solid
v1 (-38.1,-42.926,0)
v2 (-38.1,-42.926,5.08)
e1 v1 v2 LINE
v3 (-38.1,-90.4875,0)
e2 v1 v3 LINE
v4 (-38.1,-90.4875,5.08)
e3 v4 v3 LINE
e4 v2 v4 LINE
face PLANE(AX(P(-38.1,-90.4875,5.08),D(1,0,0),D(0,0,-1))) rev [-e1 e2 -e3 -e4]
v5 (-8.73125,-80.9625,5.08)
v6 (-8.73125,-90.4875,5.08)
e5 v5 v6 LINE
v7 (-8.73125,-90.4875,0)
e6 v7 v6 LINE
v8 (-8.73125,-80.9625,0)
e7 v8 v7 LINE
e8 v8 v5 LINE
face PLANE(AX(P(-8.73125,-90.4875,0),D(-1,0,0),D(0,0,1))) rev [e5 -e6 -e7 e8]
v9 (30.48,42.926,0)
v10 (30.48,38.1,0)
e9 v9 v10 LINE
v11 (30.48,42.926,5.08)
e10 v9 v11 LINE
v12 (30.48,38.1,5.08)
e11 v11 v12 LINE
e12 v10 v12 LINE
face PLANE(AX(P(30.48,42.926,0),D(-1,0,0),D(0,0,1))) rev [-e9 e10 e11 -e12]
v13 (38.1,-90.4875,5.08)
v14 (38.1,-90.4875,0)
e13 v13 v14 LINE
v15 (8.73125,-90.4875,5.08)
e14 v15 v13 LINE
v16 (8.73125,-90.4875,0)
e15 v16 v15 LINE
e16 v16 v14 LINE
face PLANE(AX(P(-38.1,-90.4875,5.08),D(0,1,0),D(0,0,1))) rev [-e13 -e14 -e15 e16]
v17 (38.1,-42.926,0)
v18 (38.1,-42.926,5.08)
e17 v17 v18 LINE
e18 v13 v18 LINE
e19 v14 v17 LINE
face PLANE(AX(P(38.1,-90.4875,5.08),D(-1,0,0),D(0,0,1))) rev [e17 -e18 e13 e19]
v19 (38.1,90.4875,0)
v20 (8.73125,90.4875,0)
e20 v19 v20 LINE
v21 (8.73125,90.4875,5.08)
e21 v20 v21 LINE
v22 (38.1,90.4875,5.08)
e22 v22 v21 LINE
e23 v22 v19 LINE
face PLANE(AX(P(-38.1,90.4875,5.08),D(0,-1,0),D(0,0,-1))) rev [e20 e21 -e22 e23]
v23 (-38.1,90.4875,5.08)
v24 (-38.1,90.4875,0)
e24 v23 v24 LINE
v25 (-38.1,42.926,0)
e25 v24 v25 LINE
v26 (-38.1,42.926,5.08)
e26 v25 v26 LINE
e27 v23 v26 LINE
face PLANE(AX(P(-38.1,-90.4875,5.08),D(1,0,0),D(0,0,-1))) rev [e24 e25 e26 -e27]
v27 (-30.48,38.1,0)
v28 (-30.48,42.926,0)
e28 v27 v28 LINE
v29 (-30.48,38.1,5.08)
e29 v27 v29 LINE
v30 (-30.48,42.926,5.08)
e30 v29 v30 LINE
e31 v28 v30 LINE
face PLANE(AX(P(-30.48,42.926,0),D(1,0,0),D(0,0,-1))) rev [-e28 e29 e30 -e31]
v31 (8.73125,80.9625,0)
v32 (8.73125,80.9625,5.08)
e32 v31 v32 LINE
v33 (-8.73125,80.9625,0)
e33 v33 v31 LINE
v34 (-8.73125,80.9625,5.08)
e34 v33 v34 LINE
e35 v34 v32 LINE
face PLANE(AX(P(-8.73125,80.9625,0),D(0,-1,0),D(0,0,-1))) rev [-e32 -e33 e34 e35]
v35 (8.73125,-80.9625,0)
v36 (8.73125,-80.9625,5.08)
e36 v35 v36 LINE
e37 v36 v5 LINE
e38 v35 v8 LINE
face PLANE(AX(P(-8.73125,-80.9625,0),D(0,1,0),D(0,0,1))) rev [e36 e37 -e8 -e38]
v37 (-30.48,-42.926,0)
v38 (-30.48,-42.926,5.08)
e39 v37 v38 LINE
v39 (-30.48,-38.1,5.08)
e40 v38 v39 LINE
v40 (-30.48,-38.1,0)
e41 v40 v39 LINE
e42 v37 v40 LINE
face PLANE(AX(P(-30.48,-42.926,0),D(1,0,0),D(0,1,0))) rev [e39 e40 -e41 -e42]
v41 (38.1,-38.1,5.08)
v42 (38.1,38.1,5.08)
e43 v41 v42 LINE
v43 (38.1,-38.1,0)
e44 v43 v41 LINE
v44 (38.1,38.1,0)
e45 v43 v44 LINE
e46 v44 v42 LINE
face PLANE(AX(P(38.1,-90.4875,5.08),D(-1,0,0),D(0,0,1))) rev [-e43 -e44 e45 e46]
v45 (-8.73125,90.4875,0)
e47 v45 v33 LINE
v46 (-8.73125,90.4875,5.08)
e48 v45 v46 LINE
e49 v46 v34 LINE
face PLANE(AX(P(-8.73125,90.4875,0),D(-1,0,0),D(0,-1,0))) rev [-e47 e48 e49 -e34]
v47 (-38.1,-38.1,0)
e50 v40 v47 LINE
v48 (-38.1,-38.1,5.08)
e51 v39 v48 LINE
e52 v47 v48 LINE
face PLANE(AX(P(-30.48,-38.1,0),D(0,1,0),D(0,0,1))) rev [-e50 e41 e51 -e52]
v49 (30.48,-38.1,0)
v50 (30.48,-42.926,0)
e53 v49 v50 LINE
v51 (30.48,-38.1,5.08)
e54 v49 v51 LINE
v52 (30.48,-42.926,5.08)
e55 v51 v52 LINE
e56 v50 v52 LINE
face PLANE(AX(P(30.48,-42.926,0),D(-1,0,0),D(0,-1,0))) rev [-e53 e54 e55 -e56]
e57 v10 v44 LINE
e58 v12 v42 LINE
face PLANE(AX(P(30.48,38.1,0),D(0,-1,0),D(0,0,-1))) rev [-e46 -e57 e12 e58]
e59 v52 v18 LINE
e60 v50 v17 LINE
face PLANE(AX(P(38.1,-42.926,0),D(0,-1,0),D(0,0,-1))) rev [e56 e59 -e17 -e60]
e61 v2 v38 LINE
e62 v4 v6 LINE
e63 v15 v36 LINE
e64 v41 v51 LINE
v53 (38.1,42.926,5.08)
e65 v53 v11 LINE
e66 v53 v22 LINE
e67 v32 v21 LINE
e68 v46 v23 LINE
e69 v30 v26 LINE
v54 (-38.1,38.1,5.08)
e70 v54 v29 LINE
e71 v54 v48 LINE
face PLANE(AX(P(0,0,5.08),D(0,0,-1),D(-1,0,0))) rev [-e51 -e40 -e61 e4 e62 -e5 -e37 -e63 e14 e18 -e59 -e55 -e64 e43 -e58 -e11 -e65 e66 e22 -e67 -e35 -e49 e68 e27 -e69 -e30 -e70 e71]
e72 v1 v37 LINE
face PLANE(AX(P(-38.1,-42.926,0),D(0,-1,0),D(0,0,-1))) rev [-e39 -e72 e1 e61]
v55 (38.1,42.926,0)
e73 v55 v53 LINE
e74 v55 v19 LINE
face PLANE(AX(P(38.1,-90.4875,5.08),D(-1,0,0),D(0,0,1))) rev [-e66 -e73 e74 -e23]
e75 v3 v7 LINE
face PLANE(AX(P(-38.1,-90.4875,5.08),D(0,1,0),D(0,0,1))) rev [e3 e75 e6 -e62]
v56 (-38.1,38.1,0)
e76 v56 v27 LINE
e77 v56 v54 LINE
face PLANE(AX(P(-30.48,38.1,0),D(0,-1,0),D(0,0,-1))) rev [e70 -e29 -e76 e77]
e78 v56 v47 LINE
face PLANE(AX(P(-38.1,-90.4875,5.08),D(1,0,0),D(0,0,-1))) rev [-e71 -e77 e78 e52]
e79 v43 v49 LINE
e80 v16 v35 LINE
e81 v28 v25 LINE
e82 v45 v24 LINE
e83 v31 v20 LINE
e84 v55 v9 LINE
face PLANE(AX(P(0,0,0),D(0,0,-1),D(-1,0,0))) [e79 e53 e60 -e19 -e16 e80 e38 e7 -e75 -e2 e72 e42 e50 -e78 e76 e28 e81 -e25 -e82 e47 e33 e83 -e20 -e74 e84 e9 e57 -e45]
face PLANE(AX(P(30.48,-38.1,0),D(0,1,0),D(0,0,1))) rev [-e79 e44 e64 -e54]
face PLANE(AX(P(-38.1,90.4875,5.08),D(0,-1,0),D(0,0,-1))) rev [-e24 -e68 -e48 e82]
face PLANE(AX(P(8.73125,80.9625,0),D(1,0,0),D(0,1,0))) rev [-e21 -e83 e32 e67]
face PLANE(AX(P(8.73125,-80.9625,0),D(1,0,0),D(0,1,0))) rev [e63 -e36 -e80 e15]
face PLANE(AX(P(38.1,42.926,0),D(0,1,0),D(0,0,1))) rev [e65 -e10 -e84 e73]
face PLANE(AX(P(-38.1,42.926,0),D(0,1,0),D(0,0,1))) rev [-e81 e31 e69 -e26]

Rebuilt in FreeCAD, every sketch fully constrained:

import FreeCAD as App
import Part
import Sketcher

V = App.Vector
Q = App.Units.Quantity


def add_polygon(sketch, points):
    """Adds a closed chain of lines whose ends are joined by coincident constraints."""
    first, n = sketch.GeometryCount, len(points)
    for a, b in zip(points, points[1:] + points[:1]):
        sketch.addGeometry(Part.LineSegment(App.Vector(*a, 0), App.Vector(*b, 0)), False)
    for i in range(n):
        sketch.addConstraint(Sketcher.Constraint("Coincident", first + i, 2, first + (i + 1) % n, 1))

doc = App.newDocument("Part")
params = doc.addObject("Spreadsheet::Sheet", "Params")
for row, (alias, value) in enumerate([
    ("sketch1_width", "3 in"),
    ("sketch1_height", "7.125 in"),
    ("pad1_length", "0.2 in"),
    ("sketch2_width", "0.6875 in"),
    ("sketch2_height", "0.375 in"),
    ("sketch3_width", "0.3 in"),
    ("sketch3_height", "0.19 in"),
], start=1):
    params.set(f"A{row}", alias)
    params.set(f"B{row}", "=" + value)
    params.setAlias(f"B{row}", alias)

body = doc.addObject("PartDesign::Body", "Body")

sketch1 = doc.addObject("Sketcher::SketchObject", "Sketch")
body.addObject(sketch1)
sketch1.AttachmentSupport = (doc.XY_Plane, [""])
sketch1.MapMode = "FlatFace"
add_polygon(sketch1, [(-38.1, 90.4875), (-38.1, -90.4875), (38.1, -90.4875), (38.1, 90.4875)])
sketch1.addConstraint([
    Sketcher.Constraint("Vertical", 0),
    Sketcher.Constraint("Horizontal", 1),
    Sketcher.Constraint("Vertical", 2),
    Sketcher.Constraint("Horizontal", 3),
    Sketcher.Constraint("Symmetric", 0, 2, 2, 2, -1, 1),
    Sketcher.Constraint("DistanceX", 1, 1, 1, 2, Q("3 in")),
    Sketcher.Constraint("DistanceY", 0, 2, 0, 1, Q("7.125 in")),
])
sketch1.setExpression("Constraints[9]", "Params.sketch1_width")
sketch1.setExpression("Constraints[10]", "Params.sketch1_height")
pad1 = doc.addObject("PartDesign::Pad", "Pad")
body.addObject(pad1)
pad1.Profile = sketch1
pad1.setExpression("Length", "Params.pad1_length")

sketch2 = doc.addObject("Sketcher::SketchObject", "Sketch001")
body.addObject(sketch2)
sketch2.AttachmentSupport = (doc.XY_Plane, [""])
sketch2.MapMode = "FlatFace"
sketch2.AttachmentOffset = App.Placement(V(0, 0, 0.2 * 25.4), App.Rotation())
add_polygon(sketch2, [(-8.73125, -80.9625), (-8.73125, -90.4875), (8.73125, -90.4875), (8.73125, -80.9625)])
add_polygon(sketch2, [(-8.73125, 90.4875), (-8.73125, 80.9625), (8.73125, 80.9625), (8.73125, 90.4875)])
sketch2.addConstraint([
    Sketcher.Constraint("Vertical", 0),
    Sketcher.Constraint("Horizontal", 1),
    Sketcher.Constraint("Vertical", 2),
    Sketcher.Constraint("Horizontal", 3),
    Sketcher.Constraint("Vertical", 4),
    Sketcher.Constraint("Horizontal", 5),
    Sketcher.Constraint("Vertical", 6),
    Sketcher.Constraint("Horizontal", 7),
    Sketcher.Constraint("Symmetric", 2, 2, 4, 2, -1, 1),
    Sketcher.Constraint("Symmetric", 0, 2, 6, 2, -1, 1),
    Sketcher.Constraint("Vertical", 3, 2, 4, 2),
    Sketcher.Constraint("DistanceX", 1, 1, 1, 2, Q("0.6875 in")),
    Sketcher.Constraint("DistanceY", 0, 2, 0, 1, Q("0.375 in")),
    Sketcher.Constraint("DistanceY", 0, 2, 4, 2, Q("6.75 in")),
])
sketch2.setExpression("Constraints[19]", "Params.sketch2_width")
sketch2.setExpression("Constraints[20]", "Params.sketch2_height")
pocket1 = doc.addObject("PartDesign::Pocket", "Pocket")
body.addObject(pocket1)
pocket1.Profile = sketch2
pocket1.Type = "ThroughAll"

sketch3 = doc.addObject("Sketcher::SketchObject", "Sketch002")
body.addObject(sketch3)
sketch3.AttachmentSupport = (doc.XY_Plane, [""])
sketch3.MapMode = "FlatFace"
sketch3.AttachmentOffset = App.Placement(V(0, 0, 0.2 * 25.4), App.Rotation())
add_polygon(sketch3, [(-38.1, 42.926), (-38.1, 38.1), (-30.48, 38.1), (-30.48, 42.926)])
add_polygon(sketch3, [(30.48, 42.926), (30.48, 38.1), (38.1, 38.1), (38.1, 42.926)])
add_polygon(sketch3, [(30.48, -38.1), (30.48, -42.926), (38.1, -42.926), (38.1, -38.1)])
add_polygon(sketch3, [(-38.1, -38.1), (-38.1, -42.926), (-30.48, -42.926), (-30.48, -38.1)])
sketch3.addConstraint([
    Sketcher.Constraint("Vertical", 0),
    Sketcher.Constraint("Horizontal", 1),
    Sketcher.Constraint("Vertical", 2),
    Sketcher.Constraint("Horizontal", 3),
    Sketcher.Constraint("Vertical", 4),
    Sketcher.Constraint("Horizontal", 5),
    Sketcher.Constraint("Vertical", 6),
    Sketcher.Constraint("Horizontal", 7),
    Sketcher.Constraint("Vertical", 8),
    Sketcher.Constraint("Horizontal", 9),
    Sketcher.Constraint("Vertical", 10),
    Sketcher.Constraint("Horizontal", 11),
    Sketcher.Constraint("Vertical", 12),
    Sketcher.Constraint("Horizontal", 13),
    Sketcher.Constraint("Vertical", 14),
    Sketcher.Constraint("Horizontal", 15),
    Sketcher.Constraint("Symmetric", 2, 2, 8, 2, -1, 1),
    Sketcher.Constraint("Symmetric", 0, 2, 10, 2, -1, 1),
    Sketcher.Constraint("Symmetric", 6, 2, 12, 2, -1, 1),
    Sketcher.Constraint("Symmetric", 4, 2, 14, 2, -1, 1),
    Sketcher.Constraint("Symmetric", 1, 2, 4, 2, -2),
    Sketcher.Constraint("Symmetric", 3, 2, 6, 2, -2),
    Sketcher.Constraint("DistanceX", 1, 1, 1, 2, Q("0.3 in")),
    Sketcher.Constraint("DistanceX", 0, 2, 5, 2, Q("3 in")),
    Sketcher.Constraint("DistanceY", 10, 2, 5, 2, Q("3 in")),
    Sketcher.Constraint("DistanceY", 0, 2, 0, 1, Q("0.19 in")),
])
sketch3.setExpression("Constraints[38]", "Params.sketch3_width")
sketch3.setExpression("Constraints[41]", "Params.sketch3_height")
pocket2 = doc.addObject("PartDesign::Pocket", "Pocket001")
body.addObject(pocket2)
pocket2.Profile = sketch3
pocket2.Type = "ThroughAll"

doc.recompute()
